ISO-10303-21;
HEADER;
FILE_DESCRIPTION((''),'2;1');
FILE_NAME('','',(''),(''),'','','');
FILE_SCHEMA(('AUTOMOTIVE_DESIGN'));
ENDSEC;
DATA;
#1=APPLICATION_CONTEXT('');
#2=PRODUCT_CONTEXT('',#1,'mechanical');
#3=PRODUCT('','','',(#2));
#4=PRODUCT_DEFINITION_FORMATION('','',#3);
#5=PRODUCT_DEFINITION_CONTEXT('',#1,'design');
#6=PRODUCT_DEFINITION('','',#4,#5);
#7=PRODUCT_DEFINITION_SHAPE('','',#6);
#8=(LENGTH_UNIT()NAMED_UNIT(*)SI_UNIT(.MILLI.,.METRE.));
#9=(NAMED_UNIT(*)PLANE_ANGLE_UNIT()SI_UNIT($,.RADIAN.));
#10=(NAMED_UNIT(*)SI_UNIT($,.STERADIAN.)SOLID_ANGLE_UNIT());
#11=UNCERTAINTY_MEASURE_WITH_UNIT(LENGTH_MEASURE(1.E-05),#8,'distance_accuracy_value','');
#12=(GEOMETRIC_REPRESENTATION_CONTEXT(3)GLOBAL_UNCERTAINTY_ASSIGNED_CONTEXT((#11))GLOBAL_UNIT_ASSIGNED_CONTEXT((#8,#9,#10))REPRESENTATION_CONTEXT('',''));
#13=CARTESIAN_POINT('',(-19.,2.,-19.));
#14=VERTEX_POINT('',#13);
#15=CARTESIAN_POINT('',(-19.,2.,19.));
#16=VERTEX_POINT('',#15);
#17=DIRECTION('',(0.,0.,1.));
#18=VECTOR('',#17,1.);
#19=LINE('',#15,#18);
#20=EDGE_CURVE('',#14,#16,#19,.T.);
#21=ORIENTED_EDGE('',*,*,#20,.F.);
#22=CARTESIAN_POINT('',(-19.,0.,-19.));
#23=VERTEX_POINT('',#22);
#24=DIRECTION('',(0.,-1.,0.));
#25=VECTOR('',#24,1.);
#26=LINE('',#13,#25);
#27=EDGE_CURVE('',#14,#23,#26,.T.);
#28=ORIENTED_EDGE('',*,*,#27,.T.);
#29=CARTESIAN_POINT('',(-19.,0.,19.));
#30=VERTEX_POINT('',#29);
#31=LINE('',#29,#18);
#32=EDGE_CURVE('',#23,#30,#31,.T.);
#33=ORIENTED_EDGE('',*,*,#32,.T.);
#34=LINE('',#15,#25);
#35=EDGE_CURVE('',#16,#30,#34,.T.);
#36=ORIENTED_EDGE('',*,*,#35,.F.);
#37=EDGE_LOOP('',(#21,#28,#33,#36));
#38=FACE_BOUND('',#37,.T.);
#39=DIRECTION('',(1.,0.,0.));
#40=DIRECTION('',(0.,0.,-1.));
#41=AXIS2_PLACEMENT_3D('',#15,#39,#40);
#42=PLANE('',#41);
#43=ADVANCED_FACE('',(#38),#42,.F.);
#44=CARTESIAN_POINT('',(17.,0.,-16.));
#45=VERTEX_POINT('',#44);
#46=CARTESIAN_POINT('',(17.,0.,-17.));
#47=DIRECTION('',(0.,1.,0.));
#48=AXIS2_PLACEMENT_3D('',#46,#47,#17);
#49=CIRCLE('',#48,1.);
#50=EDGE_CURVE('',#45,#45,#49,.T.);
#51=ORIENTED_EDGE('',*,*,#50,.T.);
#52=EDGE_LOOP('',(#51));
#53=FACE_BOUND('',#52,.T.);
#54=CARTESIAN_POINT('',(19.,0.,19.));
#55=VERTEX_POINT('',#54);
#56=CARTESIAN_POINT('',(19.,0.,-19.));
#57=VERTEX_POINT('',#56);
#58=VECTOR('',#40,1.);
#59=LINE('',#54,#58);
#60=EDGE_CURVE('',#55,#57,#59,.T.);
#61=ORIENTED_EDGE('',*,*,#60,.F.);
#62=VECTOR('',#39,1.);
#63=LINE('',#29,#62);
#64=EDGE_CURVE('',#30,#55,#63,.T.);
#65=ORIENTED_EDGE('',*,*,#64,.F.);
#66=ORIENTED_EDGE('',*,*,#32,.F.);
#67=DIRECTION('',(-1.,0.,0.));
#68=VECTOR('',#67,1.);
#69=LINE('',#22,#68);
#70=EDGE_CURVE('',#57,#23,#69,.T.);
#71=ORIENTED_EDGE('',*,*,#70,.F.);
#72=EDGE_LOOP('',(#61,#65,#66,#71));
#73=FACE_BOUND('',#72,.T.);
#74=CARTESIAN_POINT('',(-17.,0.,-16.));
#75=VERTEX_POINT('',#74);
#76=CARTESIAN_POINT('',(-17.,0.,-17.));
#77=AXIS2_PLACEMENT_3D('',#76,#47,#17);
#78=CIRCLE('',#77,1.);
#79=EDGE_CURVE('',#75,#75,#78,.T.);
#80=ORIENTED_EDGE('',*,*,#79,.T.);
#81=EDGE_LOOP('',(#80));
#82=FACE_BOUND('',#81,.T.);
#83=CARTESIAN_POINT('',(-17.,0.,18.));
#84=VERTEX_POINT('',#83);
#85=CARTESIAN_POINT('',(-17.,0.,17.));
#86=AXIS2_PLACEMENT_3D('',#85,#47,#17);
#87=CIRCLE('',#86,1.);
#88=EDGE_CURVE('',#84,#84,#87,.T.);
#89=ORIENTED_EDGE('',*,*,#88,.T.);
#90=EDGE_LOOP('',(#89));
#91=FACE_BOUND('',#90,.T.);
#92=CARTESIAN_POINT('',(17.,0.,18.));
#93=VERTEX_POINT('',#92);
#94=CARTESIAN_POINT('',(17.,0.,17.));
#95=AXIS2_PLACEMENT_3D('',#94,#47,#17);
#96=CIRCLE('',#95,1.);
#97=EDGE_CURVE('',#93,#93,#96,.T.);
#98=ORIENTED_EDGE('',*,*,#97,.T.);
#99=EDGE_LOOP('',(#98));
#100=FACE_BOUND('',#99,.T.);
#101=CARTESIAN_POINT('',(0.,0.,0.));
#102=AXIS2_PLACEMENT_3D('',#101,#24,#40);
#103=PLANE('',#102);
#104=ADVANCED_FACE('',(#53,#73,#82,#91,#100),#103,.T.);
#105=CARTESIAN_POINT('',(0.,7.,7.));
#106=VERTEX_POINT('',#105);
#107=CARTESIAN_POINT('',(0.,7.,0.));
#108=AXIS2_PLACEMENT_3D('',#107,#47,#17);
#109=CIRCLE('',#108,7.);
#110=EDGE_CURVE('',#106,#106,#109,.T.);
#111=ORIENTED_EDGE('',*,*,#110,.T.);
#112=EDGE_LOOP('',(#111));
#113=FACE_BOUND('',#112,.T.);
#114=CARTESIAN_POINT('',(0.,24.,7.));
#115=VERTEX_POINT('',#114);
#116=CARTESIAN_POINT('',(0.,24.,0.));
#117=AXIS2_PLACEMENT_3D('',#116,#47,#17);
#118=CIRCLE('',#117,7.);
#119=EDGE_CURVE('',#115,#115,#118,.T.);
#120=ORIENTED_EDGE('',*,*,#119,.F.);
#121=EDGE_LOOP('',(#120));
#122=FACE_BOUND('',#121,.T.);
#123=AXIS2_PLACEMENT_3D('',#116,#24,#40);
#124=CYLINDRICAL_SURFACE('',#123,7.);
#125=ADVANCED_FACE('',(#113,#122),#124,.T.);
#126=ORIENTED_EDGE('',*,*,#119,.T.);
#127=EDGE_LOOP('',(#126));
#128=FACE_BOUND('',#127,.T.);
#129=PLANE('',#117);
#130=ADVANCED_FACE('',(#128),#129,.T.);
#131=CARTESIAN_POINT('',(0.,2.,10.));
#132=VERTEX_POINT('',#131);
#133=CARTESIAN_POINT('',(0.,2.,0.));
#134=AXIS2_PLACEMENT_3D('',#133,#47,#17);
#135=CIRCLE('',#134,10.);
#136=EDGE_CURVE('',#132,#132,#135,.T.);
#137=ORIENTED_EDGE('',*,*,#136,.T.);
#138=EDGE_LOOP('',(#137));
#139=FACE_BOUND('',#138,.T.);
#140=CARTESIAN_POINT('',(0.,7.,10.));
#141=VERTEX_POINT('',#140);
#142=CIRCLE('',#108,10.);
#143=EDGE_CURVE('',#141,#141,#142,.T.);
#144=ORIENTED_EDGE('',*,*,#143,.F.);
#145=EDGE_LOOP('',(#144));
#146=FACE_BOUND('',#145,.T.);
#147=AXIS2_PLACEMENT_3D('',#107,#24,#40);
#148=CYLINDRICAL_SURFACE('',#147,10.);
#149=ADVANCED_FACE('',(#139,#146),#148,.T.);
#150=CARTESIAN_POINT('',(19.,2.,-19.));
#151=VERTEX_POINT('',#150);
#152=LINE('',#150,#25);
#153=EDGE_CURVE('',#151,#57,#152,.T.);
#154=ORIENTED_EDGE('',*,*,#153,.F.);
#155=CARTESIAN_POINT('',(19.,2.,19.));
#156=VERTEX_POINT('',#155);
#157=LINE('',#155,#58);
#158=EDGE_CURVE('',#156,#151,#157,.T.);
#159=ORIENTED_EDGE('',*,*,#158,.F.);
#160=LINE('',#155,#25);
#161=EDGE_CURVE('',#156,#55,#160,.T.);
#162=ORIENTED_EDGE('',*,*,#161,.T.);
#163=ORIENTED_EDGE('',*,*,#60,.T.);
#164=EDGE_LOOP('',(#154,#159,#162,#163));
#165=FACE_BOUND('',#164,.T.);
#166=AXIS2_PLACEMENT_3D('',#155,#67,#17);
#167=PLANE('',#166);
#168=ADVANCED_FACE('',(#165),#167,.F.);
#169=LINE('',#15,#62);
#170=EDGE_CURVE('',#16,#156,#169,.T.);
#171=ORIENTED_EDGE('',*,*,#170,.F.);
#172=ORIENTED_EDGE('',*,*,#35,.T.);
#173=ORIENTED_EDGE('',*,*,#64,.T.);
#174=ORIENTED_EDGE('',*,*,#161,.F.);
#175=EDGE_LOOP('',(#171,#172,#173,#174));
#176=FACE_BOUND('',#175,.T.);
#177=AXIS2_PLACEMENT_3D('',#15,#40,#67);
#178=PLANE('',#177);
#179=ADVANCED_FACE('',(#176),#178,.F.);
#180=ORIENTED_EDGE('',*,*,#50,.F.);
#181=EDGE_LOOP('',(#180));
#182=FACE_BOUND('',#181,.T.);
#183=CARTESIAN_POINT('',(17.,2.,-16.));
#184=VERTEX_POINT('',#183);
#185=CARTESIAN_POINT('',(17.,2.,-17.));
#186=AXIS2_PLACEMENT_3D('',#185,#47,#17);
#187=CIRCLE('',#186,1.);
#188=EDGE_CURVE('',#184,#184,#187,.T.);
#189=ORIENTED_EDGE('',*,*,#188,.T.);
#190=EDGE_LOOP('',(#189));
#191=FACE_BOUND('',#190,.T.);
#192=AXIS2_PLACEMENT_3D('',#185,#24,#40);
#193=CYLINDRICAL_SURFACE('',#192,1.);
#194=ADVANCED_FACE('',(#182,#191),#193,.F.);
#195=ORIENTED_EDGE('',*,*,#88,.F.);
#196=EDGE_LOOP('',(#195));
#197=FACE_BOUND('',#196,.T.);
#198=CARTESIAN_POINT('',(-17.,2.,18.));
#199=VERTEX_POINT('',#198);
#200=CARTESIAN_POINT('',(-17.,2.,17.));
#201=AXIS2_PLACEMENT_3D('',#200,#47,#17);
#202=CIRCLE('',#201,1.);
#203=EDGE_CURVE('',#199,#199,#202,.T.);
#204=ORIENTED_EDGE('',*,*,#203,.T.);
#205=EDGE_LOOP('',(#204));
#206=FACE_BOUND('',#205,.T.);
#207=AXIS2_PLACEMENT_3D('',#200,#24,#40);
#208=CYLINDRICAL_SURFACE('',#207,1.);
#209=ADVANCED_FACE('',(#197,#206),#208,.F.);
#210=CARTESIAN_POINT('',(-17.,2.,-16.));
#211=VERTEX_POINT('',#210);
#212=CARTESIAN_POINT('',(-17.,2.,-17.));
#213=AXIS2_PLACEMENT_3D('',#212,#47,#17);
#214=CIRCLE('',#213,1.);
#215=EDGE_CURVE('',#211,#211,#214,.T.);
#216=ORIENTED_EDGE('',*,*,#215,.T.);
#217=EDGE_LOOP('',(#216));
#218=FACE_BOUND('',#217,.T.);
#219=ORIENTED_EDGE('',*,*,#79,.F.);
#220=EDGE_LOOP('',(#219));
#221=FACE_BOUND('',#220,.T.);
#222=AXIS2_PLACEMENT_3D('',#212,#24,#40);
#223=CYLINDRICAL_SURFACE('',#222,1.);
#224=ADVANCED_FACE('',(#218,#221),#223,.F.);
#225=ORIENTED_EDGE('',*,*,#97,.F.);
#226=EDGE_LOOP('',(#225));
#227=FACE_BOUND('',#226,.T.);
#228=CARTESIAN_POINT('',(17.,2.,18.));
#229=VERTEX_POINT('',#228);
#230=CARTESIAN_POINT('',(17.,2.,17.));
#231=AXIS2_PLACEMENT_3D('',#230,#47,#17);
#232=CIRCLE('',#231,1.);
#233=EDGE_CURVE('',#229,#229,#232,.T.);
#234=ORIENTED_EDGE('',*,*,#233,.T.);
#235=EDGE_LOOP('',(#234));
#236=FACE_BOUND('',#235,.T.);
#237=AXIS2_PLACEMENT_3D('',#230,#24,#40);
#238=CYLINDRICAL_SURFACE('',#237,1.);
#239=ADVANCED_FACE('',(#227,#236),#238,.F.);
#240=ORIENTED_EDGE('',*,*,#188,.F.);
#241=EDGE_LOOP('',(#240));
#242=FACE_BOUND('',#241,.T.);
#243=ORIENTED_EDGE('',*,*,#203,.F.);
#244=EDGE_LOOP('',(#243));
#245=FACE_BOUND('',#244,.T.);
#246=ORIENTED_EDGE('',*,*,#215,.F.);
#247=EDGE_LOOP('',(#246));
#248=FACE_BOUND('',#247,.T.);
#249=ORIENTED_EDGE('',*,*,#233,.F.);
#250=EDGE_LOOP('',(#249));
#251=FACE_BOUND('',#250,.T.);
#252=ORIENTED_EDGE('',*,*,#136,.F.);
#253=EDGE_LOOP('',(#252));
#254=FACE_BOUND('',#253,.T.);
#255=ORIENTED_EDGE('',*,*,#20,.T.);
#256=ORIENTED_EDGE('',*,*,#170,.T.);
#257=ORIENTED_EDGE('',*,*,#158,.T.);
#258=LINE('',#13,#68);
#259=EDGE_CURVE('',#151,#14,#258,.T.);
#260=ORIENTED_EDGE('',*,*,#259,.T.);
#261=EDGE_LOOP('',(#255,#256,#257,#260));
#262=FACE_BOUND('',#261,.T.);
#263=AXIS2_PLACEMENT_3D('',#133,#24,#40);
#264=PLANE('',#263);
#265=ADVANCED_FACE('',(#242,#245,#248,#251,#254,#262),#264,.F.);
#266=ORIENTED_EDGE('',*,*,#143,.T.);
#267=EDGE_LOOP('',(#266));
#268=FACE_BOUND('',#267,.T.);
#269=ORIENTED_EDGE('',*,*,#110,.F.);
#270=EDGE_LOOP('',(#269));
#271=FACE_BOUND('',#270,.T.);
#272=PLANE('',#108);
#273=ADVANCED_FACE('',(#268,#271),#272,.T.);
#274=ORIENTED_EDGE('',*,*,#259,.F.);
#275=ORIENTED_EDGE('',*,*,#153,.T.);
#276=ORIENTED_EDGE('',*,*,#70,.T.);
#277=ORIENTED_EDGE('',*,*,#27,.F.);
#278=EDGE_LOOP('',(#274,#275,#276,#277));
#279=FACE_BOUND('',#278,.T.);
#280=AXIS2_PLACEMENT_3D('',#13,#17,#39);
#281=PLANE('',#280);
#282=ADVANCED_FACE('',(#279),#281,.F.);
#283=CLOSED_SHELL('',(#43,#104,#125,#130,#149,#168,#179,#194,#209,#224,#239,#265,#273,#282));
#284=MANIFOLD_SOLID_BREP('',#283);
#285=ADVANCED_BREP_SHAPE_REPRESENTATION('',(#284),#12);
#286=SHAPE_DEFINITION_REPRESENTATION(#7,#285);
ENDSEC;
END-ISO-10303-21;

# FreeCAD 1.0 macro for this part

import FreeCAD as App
import Part
import Sketcher


def add_polygon(sketch, points):
    """Adds a closed chain of lines whose ends are joined by coincident constraints."""
    first, n = sketch.GeometryCount, len(points)
    for a, b in zip(points, points[1:] + points[:1]):
        sketch.addGeometry(Part.LineSegment(App.Vector(*a, 0), App.Vector(*b, 0)), False)
    for i in range(n):
        sketch.addConstraint(Sketcher.Constraint("Coincident", first + i, 2, first + (i + 1) % n, 1))

doc = App.newDocument("Part")
params = doc.addObject("Spreadsheet::Sheet", "Params")
for row, (alias, value) in enumerate([
    ("sketch1_diameter", "2 mm"),
    ("sketch1_width", "38 mm"),
    ("pad1_length", "2 mm"),
    ("sketch2_diameter", "20 mm"),
    ("pad2_length", "5 mm"),
    ("sketch3_diameter", "14 mm"),
    ("pad3_length", "17 mm"),
], start=1):
    params.set(f"A{row}", alias)
    params.set(f"B{row}", "=" + value)
    params.setAlias(f"B{row}", alias)

body = doc.addObject("PartDesign::Body", "Body")

sketch1 = body.newObject("Sketcher::SketchObject", "Sketch")
sketch1.AttachmentSupport = (doc.getObject("XZ_Plane"), [""])
sketch1.MapMode = "FlatFace"
add_polygon(sketch1, [(-19, -19), (-19, 19), (19, 19), (19, -19)])
sketch1.addGeometry(Part.Circle(App.Vector(-17, 17, 0), App.Vector(0, 0, 1), 1), False)
sketch1.addGeometry(Part.Circle(App.Vector(17, 17, 0), App.Vector(0, 0, 1), 1), False)
sketch1.addGeometry(Part.Circle(App.Vector(-17, -17, 0), App.Vector(0, 0, 1), 1), False)
sketch1.addGeometry(Part.Circle(App.Vector(17, -17, 0), App.Vector(0, 0, 1), 1), False)
sketch1.addConstraint([
    Sketcher.Constraint("Vertical", 0),
    Sketcher.Constraint("Horizontal", 1),
    Sketcher.Constraint("Vertical", 2),
    Sketcher.Constraint("Horizontal", 3),
    Sketcher.Constraint("Equal", 4, 5),
    Sketcher.Constraint("Equal", 5, 6),
    Sketcher.Constraint("Equal", 6, 7),
    Sketcher.Constraint("Symmetric", 5, 3, 6, 3, -1, 1),
    Sketcher.Constraint("Symmetric", 4, 3, 7, 3, -1, 1),
    Sketcher.Constraint("Symmetric", 0, 2, 2, 2, -1, 1),
    Sketcher.Constraint("Symmetric", 4, 3, 5, 3, -2),
    Sketcher.Constraint("Equal", 3, 0),
    Sketcher.Constraint("Diameter", 4, 2.0),
    Sketcher.Constraint("DistanceX", 1, 1, 1, 2, 38.0),
    Sketcher.Constraint("DistanceX", 4, 3, -1, 1, 17.0),
    Sketcher.Constraint("DistanceY", -1, 1, 4, 3, 17.0),
])
sketch1.setExpression("Constraints[16]", "Params.sketch1_diameter")
sketch1.setExpression("Constraints[17]", "Params.sketch1_width")
pad1 = body.newObject("PartDesign::Pad", "Pad")
pad1.Profile = sketch1
pad1.setExpression("Length", "Params.pad1_length")
pad1.Reversed = True

sketch2 = body.newObject("Sketcher::SketchObject", "Sketch001")
sketch2.AttachmentSupport = (doc.getObject("XZ_Plane"), [""])
sketch2.MapMode = "FlatFace"
sketch2.AttachmentOffset = App.Placement(App.Vector(0, 0, -2), App.Rotation())
sketch2.addGeometry(Part.Circle(App.Vector(0, 0, 0), App.Vector(0, 0, 1), 10), False)
sketch2.addConstraint([
    Sketcher.Constraint("Coincident", 0, 3, -1, 1),
    Sketcher.Constraint("Diameter", 0, 20.0),
])
sketch2.setExpression("Constraints[1]", "Params.sketch2_diameter")
pad2 = body.newObject("PartDesign::Pad", "Pad001")
pad2.Profile = sketch2
pad2.setExpression("Length", "Params.pad2_length")
pad2.Reversed = True

sketch3 = body.newObject("Sketcher::SketchObject", "Sketch002")
sketch3.AttachmentSupport = (doc.getObject("XZ_Plane"), [""])
sketch3.MapMode = "FlatFace"
sketch3.AttachmentOffset = App.Placement(App.Vector(0, 0, -7), App.Rotation())
sketch3.addGeometry(Part.Circle(App.Vector(0, 0, 0), App.Vector(0, 0, 1), 7), False)
sketch3.addConstraint([
    Sketcher.Constraint("Coincident", 0, 3, -1, 1),
    Sketcher.Constraint("Diameter", 0, 14.0),
])
sketch3.setExpression("Constraints[1]", "Params.sketch3_diameter")
pad3 = body.newObject("PartDesign::Pad", "Pad002")
pad3.Profile = sketch3
pad3.setExpression("Length", "Params.pad3_length")
pad3.Reversed = True

doc.recompute()
